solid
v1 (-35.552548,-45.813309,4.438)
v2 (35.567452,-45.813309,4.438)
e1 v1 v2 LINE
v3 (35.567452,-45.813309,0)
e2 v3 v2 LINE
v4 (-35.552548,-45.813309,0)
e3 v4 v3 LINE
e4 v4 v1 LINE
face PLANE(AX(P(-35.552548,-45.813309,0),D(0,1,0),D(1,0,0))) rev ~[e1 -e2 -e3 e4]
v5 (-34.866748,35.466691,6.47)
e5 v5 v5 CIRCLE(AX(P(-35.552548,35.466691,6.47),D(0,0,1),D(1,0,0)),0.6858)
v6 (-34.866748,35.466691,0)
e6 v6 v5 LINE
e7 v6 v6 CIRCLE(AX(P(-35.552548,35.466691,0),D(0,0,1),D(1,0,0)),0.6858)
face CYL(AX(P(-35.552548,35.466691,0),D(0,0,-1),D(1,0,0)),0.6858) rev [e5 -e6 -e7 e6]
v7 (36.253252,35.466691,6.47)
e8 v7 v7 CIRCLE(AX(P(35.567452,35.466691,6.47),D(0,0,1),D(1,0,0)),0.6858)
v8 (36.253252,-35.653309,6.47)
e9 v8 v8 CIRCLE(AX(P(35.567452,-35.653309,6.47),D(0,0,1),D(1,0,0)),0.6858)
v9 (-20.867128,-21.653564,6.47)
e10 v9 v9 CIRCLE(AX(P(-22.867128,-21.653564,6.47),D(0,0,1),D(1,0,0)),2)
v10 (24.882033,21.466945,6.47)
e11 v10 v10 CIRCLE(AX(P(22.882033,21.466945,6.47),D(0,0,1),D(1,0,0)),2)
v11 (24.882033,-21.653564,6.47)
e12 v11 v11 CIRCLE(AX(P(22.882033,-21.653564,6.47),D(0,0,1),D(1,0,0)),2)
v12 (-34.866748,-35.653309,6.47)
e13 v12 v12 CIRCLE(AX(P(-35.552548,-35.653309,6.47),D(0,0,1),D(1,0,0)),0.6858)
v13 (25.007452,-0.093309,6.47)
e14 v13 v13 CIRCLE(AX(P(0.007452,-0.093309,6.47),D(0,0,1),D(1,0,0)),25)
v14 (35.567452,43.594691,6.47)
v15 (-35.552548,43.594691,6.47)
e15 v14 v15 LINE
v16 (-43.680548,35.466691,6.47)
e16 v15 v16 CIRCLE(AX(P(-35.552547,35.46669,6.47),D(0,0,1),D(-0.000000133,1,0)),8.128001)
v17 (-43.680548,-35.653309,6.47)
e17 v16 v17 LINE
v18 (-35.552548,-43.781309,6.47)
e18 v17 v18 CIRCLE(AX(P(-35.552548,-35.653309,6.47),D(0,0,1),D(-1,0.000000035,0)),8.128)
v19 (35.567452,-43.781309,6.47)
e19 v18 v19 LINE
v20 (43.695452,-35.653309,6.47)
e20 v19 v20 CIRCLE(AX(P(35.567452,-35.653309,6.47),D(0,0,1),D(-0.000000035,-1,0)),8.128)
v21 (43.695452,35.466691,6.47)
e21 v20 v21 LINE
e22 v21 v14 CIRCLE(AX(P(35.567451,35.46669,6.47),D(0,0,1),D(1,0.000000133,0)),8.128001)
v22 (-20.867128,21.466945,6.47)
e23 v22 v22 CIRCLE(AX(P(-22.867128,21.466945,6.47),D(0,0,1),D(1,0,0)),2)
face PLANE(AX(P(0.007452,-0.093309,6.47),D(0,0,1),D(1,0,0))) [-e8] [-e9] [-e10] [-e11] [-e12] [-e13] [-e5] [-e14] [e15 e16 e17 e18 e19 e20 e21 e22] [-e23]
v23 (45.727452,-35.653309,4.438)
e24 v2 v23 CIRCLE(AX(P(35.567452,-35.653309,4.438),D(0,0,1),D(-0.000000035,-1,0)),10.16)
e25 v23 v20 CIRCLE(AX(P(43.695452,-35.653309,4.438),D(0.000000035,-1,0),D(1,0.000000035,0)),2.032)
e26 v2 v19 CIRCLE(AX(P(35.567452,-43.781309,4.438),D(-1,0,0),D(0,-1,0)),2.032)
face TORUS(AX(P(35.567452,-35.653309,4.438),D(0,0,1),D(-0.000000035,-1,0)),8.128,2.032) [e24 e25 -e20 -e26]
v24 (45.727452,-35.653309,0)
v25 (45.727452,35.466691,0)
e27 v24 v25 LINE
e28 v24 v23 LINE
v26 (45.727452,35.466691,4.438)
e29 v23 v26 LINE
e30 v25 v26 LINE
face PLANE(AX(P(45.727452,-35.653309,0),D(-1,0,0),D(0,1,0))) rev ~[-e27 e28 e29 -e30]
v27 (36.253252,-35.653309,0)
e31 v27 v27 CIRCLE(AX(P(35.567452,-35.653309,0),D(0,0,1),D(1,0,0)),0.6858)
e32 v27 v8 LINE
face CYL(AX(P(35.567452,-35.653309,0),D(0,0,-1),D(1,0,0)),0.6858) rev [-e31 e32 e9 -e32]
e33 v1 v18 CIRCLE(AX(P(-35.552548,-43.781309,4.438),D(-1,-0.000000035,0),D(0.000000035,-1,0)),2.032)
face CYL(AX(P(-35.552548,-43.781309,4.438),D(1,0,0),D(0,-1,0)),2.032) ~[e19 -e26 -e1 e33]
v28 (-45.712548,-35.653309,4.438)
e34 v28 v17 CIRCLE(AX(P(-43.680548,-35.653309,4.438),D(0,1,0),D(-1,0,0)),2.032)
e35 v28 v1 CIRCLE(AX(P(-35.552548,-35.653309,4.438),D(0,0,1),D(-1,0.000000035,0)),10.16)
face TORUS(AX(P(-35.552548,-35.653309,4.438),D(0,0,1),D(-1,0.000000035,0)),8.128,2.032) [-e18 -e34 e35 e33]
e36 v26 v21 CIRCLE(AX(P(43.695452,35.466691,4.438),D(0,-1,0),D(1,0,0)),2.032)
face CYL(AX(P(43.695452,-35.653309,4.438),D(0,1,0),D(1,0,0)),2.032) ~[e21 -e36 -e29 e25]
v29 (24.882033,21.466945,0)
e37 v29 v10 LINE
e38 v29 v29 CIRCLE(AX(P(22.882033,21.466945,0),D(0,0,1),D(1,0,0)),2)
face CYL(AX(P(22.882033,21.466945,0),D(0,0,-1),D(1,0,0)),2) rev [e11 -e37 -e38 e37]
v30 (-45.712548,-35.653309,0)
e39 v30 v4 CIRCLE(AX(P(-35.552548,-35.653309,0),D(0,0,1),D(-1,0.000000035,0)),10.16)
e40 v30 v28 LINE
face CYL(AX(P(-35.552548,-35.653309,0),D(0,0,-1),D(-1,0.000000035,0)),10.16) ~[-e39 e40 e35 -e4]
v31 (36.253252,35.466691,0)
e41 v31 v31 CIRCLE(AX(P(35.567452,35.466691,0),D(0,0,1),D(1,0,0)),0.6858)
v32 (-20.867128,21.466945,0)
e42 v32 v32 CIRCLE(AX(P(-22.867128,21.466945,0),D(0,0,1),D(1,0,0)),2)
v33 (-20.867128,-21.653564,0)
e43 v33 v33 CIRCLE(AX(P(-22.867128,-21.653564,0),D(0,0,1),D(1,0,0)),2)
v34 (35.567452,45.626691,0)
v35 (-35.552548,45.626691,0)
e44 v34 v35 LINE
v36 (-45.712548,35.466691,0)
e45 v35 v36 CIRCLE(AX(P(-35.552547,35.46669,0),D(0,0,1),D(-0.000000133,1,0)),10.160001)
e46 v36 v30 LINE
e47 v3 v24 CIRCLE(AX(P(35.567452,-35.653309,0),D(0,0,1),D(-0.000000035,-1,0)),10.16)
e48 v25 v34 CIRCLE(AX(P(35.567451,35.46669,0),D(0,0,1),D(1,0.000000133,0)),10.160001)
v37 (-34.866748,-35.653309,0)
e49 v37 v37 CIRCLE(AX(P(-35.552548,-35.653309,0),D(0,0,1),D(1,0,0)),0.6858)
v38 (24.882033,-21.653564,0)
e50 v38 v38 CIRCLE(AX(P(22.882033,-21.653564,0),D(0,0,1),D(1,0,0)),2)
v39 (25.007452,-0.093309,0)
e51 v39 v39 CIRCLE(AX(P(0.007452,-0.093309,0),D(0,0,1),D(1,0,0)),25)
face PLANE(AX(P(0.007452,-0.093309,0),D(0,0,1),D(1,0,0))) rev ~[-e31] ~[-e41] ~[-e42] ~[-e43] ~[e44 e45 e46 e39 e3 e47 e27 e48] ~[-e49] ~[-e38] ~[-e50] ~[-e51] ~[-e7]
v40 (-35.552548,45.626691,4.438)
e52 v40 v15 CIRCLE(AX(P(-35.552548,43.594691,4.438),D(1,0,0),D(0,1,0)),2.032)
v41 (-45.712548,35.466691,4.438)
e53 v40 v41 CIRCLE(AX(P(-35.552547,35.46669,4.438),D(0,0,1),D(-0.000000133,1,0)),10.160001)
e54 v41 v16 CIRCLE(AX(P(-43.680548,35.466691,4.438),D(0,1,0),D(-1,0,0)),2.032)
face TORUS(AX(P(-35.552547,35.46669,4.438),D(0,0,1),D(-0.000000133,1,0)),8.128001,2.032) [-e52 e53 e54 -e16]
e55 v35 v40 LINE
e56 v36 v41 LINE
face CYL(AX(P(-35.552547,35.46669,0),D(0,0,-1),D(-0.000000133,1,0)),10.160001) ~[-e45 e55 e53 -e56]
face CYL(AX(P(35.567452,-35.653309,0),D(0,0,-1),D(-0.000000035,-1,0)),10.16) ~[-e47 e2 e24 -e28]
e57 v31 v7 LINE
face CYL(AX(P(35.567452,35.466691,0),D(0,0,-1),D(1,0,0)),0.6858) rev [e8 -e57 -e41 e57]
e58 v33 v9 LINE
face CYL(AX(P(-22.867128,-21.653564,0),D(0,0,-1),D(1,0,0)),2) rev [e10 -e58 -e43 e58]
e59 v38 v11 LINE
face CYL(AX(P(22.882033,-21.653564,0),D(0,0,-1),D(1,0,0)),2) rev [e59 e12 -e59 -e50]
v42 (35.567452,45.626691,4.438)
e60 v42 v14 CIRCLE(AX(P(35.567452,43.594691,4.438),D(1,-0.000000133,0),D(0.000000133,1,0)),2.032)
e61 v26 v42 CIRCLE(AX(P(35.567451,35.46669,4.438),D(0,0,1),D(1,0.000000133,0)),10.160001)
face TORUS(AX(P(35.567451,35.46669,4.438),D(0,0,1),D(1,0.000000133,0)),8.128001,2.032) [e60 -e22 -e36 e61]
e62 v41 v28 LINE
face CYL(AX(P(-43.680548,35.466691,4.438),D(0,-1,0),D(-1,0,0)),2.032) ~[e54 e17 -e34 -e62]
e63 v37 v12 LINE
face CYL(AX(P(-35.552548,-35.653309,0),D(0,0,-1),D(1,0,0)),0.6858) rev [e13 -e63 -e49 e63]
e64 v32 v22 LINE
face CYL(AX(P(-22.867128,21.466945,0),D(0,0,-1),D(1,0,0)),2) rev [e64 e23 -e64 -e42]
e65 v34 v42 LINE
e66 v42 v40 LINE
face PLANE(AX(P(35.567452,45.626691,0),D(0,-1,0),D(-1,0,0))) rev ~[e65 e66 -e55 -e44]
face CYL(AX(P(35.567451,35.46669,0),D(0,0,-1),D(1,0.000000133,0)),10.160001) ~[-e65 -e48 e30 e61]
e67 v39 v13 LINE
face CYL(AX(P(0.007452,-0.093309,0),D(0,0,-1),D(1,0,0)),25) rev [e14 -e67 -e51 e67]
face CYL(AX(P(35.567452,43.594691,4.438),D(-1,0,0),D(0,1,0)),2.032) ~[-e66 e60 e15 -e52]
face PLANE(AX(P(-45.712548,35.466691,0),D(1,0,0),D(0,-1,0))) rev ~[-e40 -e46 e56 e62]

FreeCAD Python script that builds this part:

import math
import FreeCAD as App
import Part
import Sketcher
Q = App.Units.Quantity


def edges_at(feature, points):
    """Names of the edges that pass closest to the given points."""
    edges = feature.Shape.Edges
    near = lambda p: min(range(len(edges)), key=lambda i: edges[i].distToShape(Part.Vertex(*p))[0])
    return sorted({f"Edge{near(p) + 1}" for p in points})

doc = App.newDocument("Part")
params = doc.addObject("Spreadsheet::Sheet", "Params")
for row, (alias, value) in enumerate([
    ("sketch1_radius", "0.4000001 in"),
    ("sketch1_diameter", "0.054 in"),
    ("sketch1_width", "2.8 in"),
    ("pad1_length", "6.47 mm"),
    ("fillet_radius", "0.08 in"),
], start=1):
    params.set(f"A{row}", alias)
    params.set(f"B{row}", "=" + value)
    params.setAlias(f"B{row}", alias)

body = doc.addObject("PartDesign::Body", "Body")

# Sketch on XY plane
sketch1 = body.newObject("Sketcher::SketchObject", "Sketch")
sketch1.AttachmentSupport = (doc.getObject("XY_Plane"), [""])
sketch1.MapMode = "FlatFace"
sketch1.addGeometry([
    Part.LineSegment(App.Vector(35.567452, 45.626691, 0), App.Vector(-35.552548, 45.626691, 0)),  # 0
    Part.ArcOfCircle(Part.Circle(App.Vector(-35.552547, 35.46669, 0), App.Vector(0, 0, 1), 10.160001), math.radians(90.000008), math.radians(179.999992)),  # 1
    Part.LineSegment(App.Vector(-45.712548, 35.466691, 0), App.Vector(-45.712548, -35.653309, 0)),  # 2
    Part.ArcOfCircle(Part.Circle(App.Vector(-35.552548, -35.653309, 0), App.Vector(0, 0, 1), 10.16), math.radians(179.999998), math.radians(270.000002)),  # 3
    Part.LineSegment(App.Vector(-35.552548, -45.813309, 0), App.Vector(35.567452, -45.813309, 0)),  # 4
    Part.ArcOfCircle(Part.Circle(App.Vector(35.567452, -35.653309, 0), App.Vector(0, 0, 1), 10.16), math.radians(-90.000002), math.radians(0.000002)),  # 5
    Part.LineSegment(App.Vector(45.727452, -35.653309, 0), App.Vector(45.727452, 35.466691, 0)),  # 6
    Part.ArcOfCircle(Part.Circle(App.Vector(35.567451, 35.46669, 0), App.Vector(0, 0, 1), 10.160001), math.radians(0.000008), math.radians(89.999992)),  # 7
    Part.Circle(App.Vector(-35.552548, -35.653309, 0), App.Vector(0, 0, 1), 0.6858),  # 8
    Part.Circle(App.Vector(-22.867128, -21.653564, 0), App.Vector(0, 0, 1), 2),  # 9
    Part.Circle(App.Vector(35.567452, -35.653309, 0), App.Vector(0, 0, 1), 0.6858),  # 10
    Part.Circle(App.Vector(22.882033, -21.653564, 0), App.Vector(0, 0, 1), 2),  # 11
    Part.Circle(App.Vector(-22.867128, 21.466945, 0), App.Vector(0, 0, 1), 2),  # 12
    Part.Circle(App.Vector(-35.552548, 35.466691, 0), App.Vector(0, 0, 1), 0.6858),  # 13
    Part.Circle(App.Vector(0.007452, -0.093309, 0), App.Vector(0, 0, 1), 25),  # 14
    Part.Circle(App.Vector(22.882033, 21.466945, 0), App.Vector(0, 0, 1), 2),  # 15
    Part.Circle(App.Vector(35.567452, 35.466691, 0), App.Vector(0, 0, 1), 0.6858),  # 16
], False)
sketch1.addConstraint([
    Sketcher.Constraint("Tangent", 0, 2, 1, 1),
    Sketcher.Constraint("Tangent", 1, 2, 2, 1),
    Sketcher.Constraint("Tangent", 2, 2, 3, 1),
    Sketcher.Constraint("Tangent", 3, 2, 4, 1),
    Sketcher.Constraint("Tangent", 4, 2, 5, 1),
    Sketcher.Constraint("Tangent", 5, 2, 6, 1),
    Sketcher.Constraint("Tangent", 6, 2, 7, 1),
    Sketcher.Constraint("Tangent", 7, 2, 0, 1),
    Sketcher.Constraint("Horizontal", 0),
    Sketcher.Constraint("Vertical", 2),
    Sketcher.Constraint("Horizontal", 4),
    Sketcher.Constraint("Vertical", 6),
    Sketcher.Constraint("Coincident", 8, 3, 3, 3),
    Sketcher.Constraint("Coincident", 10, 3, 5, 3),
    Sketcher.Constraint("Coincident", 13, 3, 1, 3),
    Sketcher.Constraint("Coincident", 16, 3, 7, 3),
    Sketcher.Constraint("Equal", 1, 3),
    Sketcher.Constraint("Equal", 3, 5),
    Sketcher.Constraint("Equal", 5, 7),
    Sketcher.Constraint("Equal", 8, 10),
    Sketcher.Constraint("Equal", 9, 11),
    Sketcher.Constraint("Equal", 11, 12),
    Sketcher.Constraint("Equal", 10, 13),
    Sketcher.Constraint("Equal", 12, 15),
    Sketcher.Constraint("Equal", 13, 16),
    Sketcher.Constraint("Horizontal", 9, 3, 11, 3),
    Sketcher.Constraint("Horizontal", 12, 3, 15, 3),
    Sketcher.Constraint("Vertical", 9, 3, 12, 3),
    Sketcher.Constraint("Vertical", 11, 3, 15, 3),
    Sketcher.Constraint("Equal", 4, 2),
    Sketcher.Constraint("Radius", 1, Q("0.4000001 in")),
    Sketcher.Constraint("Diameter", 8, Q("0.054 in")),
    Sketcher.Constraint("DistanceX", 0, 2, 0, 1, Q("2.8 in")),
    Sketcher.Constraint("DistanceX", 1, 3, 14, 3, Q("1.3999999 in")),
    Sketcher.Constraint("DistanceY", 14, 3, 1, 3, Q("1.3999999 in")),
    Sketcher.Constraint("Diameter", 9, Q("4 mm")),
    Sketcher.Constraint("Diameter", 14, Q("50 mm")),
    Sketcher.Constraint("DistanceY", -1, 1, 1, 3, Q("35.46669 mm")),
    Sketcher.Constraint("DistanceX", 3, 3, -1, 1, Q("35.552548 mm")),
    Sketcher.Constraint("DistanceX", 9, 3, -1, 1, Q("22.867128 mm")),
    Sketcher.Constraint("DistanceX", 11, 3, 10, 3, Q("12.685419 mm")),
    Sketcher.Constraint("DistanceY", 9, 3, 12, 3, Q("43.120509 mm")),
    Sketcher.Constraint("DistanceY", 9, 3, -1, 1, Q("21.653564 mm")),
])
sketch1.setExpression("Constraints[30]", "Params.sketch1_radius")
sketch1.setExpression("Constraints[31]", "Params.sketch1_diameter")
sketch1.setExpression("Constraints[32]", "Params.sketch1_width")
pad1 = body.newObject("PartDesign::Pad", "Pad")
pad1.Profile = sketch1
pad1.setExpression("Length", "Params.pad1_length")
doc.recompute()

fillet = body.newObject("PartDesign::Fillet", "Fillet")
fillet.Base = (pad1, edges_at(pad1, [(-45.713, -0.093, 6.47)]))
fillet.setExpression("Radius", "Params.fillet_radius")

doc.recompute()
